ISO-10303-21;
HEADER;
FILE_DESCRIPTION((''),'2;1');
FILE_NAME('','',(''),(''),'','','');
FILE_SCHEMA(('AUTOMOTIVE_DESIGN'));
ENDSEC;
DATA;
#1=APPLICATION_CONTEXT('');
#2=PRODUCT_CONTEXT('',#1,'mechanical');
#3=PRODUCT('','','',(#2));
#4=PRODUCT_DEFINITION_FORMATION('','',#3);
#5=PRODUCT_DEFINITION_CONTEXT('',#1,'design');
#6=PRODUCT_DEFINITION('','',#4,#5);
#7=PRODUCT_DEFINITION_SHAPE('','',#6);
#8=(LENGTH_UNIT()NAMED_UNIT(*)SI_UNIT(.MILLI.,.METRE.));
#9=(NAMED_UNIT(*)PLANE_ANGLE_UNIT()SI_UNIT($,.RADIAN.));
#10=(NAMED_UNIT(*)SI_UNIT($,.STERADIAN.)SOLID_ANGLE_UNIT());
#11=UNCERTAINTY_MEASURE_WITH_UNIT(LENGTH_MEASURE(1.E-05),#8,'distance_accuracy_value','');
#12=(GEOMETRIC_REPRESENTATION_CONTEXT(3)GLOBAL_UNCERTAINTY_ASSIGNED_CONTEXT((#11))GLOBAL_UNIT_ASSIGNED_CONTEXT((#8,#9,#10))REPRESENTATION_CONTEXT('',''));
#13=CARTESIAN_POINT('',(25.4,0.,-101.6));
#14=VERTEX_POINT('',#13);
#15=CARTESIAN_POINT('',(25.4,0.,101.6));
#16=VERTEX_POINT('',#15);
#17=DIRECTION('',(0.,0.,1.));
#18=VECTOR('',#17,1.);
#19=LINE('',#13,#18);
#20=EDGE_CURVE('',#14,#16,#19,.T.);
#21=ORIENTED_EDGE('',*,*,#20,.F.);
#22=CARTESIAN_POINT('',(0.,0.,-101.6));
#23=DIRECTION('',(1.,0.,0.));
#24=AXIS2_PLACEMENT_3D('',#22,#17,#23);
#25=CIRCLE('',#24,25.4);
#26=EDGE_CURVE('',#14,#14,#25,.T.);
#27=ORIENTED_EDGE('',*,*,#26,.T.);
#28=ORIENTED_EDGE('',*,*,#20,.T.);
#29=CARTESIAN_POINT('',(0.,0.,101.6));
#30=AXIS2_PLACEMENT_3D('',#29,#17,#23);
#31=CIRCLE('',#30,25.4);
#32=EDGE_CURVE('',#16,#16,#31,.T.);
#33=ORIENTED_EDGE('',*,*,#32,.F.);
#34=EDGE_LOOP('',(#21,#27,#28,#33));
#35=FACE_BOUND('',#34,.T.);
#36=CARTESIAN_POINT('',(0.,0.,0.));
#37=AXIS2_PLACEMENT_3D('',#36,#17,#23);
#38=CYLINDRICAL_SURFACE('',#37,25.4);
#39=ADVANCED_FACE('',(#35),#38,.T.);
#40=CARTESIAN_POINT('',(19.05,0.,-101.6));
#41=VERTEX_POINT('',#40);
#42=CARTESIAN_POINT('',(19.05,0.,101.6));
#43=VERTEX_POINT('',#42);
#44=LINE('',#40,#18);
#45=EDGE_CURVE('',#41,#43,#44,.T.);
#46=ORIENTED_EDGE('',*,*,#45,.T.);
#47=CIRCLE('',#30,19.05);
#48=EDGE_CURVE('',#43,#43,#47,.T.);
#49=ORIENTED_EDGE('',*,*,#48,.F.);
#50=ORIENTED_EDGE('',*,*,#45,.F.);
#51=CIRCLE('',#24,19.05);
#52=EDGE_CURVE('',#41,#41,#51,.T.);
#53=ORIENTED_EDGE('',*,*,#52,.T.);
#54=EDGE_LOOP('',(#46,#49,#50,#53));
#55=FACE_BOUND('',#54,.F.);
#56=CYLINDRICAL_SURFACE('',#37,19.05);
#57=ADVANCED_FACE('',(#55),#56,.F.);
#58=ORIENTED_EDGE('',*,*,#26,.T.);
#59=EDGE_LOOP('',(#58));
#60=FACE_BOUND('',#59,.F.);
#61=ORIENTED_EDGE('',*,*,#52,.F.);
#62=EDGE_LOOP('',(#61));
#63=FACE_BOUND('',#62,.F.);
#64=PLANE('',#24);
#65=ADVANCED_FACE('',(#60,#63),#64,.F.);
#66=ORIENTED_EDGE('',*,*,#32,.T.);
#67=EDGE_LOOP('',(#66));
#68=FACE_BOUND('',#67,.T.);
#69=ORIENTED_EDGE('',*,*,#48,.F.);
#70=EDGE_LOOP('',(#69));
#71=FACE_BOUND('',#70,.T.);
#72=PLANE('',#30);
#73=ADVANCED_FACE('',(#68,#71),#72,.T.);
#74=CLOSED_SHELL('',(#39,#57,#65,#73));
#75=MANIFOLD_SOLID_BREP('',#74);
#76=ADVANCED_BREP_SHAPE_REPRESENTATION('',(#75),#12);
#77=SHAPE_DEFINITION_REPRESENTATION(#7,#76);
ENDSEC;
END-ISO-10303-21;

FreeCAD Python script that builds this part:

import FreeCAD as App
import Part
import Sketcher
from FreeCAD import Vector
Q = App.Units.Quantity


def faces_at(feature, points):
    """Names of the faces that lie closest to the given points."""
    faces = feature.Shape.Faces
    near = lambda p: min(range(len(faces)), key=lambda i: faces[i].distToShape(Part.Vertex(*p))[0])
    return sorted({f"Face{near(p) + 1}" for p in points})

doc = App.newDocument("Part")
params = doc.addObject("Spreadsheet::Sheet", "Params")
for row, (alias, value) in enumerate([
    ("sketch1_diameter", "2 in"),
    ("pad1_length", "8 in"),
    ("thickness_wall", "0.25 in"),
], start=1):
    params.set(f"A{row}", alias)
    params.set(f"B{row}", "=" + value)
    params.setAlias(f"B{row}", alias)

body = doc.addObject("PartDesign::Body", "Body")

# Sketch on XY plane
sketch1 = doc.addObject("Sketcher::SketchObject", "Sketch")
body.addObject(sketch1)
sketch1.AttachmentSupport = (doc.XY_Plane, [""])
sketch1.MapMode = "FlatFace"
sketch1.addGeometry(Part.Circle(Vector(0, 0, 0), Vector(0, 0, 1), 25), False)
sketch1.addConstraint([
    Sketcher.Constraint("Coincident", 0, 3, -1, 1),
    Sketcher.Constraint("Diameter", 0, Q("2 in")),
])
sketch1.setExpression("Constraints[1]", "Params.sketch1_diameter")
pad1 = doc.addObject("PartDesign::Pad", "Pad")
body.addObject(pad1)
pad1.Profile = sketch1
pad1.setExpression("Length", "Params.pad1_length")
pad1.Midplane = True
doc.recompute()

thickness = doc.addObject("PartDesign::Thickness", "Thickness")
body.addObject(thickness)
thickness.Base = (pad1, faces_at(pad1, [(0, 0, 101.6), (0, 0, -101.6)]))
thickness.setExpression("Value", "Params.thickness_wall")
thickness.Reversed = True
thickness.Join = "Arc"

doc.recompute()
